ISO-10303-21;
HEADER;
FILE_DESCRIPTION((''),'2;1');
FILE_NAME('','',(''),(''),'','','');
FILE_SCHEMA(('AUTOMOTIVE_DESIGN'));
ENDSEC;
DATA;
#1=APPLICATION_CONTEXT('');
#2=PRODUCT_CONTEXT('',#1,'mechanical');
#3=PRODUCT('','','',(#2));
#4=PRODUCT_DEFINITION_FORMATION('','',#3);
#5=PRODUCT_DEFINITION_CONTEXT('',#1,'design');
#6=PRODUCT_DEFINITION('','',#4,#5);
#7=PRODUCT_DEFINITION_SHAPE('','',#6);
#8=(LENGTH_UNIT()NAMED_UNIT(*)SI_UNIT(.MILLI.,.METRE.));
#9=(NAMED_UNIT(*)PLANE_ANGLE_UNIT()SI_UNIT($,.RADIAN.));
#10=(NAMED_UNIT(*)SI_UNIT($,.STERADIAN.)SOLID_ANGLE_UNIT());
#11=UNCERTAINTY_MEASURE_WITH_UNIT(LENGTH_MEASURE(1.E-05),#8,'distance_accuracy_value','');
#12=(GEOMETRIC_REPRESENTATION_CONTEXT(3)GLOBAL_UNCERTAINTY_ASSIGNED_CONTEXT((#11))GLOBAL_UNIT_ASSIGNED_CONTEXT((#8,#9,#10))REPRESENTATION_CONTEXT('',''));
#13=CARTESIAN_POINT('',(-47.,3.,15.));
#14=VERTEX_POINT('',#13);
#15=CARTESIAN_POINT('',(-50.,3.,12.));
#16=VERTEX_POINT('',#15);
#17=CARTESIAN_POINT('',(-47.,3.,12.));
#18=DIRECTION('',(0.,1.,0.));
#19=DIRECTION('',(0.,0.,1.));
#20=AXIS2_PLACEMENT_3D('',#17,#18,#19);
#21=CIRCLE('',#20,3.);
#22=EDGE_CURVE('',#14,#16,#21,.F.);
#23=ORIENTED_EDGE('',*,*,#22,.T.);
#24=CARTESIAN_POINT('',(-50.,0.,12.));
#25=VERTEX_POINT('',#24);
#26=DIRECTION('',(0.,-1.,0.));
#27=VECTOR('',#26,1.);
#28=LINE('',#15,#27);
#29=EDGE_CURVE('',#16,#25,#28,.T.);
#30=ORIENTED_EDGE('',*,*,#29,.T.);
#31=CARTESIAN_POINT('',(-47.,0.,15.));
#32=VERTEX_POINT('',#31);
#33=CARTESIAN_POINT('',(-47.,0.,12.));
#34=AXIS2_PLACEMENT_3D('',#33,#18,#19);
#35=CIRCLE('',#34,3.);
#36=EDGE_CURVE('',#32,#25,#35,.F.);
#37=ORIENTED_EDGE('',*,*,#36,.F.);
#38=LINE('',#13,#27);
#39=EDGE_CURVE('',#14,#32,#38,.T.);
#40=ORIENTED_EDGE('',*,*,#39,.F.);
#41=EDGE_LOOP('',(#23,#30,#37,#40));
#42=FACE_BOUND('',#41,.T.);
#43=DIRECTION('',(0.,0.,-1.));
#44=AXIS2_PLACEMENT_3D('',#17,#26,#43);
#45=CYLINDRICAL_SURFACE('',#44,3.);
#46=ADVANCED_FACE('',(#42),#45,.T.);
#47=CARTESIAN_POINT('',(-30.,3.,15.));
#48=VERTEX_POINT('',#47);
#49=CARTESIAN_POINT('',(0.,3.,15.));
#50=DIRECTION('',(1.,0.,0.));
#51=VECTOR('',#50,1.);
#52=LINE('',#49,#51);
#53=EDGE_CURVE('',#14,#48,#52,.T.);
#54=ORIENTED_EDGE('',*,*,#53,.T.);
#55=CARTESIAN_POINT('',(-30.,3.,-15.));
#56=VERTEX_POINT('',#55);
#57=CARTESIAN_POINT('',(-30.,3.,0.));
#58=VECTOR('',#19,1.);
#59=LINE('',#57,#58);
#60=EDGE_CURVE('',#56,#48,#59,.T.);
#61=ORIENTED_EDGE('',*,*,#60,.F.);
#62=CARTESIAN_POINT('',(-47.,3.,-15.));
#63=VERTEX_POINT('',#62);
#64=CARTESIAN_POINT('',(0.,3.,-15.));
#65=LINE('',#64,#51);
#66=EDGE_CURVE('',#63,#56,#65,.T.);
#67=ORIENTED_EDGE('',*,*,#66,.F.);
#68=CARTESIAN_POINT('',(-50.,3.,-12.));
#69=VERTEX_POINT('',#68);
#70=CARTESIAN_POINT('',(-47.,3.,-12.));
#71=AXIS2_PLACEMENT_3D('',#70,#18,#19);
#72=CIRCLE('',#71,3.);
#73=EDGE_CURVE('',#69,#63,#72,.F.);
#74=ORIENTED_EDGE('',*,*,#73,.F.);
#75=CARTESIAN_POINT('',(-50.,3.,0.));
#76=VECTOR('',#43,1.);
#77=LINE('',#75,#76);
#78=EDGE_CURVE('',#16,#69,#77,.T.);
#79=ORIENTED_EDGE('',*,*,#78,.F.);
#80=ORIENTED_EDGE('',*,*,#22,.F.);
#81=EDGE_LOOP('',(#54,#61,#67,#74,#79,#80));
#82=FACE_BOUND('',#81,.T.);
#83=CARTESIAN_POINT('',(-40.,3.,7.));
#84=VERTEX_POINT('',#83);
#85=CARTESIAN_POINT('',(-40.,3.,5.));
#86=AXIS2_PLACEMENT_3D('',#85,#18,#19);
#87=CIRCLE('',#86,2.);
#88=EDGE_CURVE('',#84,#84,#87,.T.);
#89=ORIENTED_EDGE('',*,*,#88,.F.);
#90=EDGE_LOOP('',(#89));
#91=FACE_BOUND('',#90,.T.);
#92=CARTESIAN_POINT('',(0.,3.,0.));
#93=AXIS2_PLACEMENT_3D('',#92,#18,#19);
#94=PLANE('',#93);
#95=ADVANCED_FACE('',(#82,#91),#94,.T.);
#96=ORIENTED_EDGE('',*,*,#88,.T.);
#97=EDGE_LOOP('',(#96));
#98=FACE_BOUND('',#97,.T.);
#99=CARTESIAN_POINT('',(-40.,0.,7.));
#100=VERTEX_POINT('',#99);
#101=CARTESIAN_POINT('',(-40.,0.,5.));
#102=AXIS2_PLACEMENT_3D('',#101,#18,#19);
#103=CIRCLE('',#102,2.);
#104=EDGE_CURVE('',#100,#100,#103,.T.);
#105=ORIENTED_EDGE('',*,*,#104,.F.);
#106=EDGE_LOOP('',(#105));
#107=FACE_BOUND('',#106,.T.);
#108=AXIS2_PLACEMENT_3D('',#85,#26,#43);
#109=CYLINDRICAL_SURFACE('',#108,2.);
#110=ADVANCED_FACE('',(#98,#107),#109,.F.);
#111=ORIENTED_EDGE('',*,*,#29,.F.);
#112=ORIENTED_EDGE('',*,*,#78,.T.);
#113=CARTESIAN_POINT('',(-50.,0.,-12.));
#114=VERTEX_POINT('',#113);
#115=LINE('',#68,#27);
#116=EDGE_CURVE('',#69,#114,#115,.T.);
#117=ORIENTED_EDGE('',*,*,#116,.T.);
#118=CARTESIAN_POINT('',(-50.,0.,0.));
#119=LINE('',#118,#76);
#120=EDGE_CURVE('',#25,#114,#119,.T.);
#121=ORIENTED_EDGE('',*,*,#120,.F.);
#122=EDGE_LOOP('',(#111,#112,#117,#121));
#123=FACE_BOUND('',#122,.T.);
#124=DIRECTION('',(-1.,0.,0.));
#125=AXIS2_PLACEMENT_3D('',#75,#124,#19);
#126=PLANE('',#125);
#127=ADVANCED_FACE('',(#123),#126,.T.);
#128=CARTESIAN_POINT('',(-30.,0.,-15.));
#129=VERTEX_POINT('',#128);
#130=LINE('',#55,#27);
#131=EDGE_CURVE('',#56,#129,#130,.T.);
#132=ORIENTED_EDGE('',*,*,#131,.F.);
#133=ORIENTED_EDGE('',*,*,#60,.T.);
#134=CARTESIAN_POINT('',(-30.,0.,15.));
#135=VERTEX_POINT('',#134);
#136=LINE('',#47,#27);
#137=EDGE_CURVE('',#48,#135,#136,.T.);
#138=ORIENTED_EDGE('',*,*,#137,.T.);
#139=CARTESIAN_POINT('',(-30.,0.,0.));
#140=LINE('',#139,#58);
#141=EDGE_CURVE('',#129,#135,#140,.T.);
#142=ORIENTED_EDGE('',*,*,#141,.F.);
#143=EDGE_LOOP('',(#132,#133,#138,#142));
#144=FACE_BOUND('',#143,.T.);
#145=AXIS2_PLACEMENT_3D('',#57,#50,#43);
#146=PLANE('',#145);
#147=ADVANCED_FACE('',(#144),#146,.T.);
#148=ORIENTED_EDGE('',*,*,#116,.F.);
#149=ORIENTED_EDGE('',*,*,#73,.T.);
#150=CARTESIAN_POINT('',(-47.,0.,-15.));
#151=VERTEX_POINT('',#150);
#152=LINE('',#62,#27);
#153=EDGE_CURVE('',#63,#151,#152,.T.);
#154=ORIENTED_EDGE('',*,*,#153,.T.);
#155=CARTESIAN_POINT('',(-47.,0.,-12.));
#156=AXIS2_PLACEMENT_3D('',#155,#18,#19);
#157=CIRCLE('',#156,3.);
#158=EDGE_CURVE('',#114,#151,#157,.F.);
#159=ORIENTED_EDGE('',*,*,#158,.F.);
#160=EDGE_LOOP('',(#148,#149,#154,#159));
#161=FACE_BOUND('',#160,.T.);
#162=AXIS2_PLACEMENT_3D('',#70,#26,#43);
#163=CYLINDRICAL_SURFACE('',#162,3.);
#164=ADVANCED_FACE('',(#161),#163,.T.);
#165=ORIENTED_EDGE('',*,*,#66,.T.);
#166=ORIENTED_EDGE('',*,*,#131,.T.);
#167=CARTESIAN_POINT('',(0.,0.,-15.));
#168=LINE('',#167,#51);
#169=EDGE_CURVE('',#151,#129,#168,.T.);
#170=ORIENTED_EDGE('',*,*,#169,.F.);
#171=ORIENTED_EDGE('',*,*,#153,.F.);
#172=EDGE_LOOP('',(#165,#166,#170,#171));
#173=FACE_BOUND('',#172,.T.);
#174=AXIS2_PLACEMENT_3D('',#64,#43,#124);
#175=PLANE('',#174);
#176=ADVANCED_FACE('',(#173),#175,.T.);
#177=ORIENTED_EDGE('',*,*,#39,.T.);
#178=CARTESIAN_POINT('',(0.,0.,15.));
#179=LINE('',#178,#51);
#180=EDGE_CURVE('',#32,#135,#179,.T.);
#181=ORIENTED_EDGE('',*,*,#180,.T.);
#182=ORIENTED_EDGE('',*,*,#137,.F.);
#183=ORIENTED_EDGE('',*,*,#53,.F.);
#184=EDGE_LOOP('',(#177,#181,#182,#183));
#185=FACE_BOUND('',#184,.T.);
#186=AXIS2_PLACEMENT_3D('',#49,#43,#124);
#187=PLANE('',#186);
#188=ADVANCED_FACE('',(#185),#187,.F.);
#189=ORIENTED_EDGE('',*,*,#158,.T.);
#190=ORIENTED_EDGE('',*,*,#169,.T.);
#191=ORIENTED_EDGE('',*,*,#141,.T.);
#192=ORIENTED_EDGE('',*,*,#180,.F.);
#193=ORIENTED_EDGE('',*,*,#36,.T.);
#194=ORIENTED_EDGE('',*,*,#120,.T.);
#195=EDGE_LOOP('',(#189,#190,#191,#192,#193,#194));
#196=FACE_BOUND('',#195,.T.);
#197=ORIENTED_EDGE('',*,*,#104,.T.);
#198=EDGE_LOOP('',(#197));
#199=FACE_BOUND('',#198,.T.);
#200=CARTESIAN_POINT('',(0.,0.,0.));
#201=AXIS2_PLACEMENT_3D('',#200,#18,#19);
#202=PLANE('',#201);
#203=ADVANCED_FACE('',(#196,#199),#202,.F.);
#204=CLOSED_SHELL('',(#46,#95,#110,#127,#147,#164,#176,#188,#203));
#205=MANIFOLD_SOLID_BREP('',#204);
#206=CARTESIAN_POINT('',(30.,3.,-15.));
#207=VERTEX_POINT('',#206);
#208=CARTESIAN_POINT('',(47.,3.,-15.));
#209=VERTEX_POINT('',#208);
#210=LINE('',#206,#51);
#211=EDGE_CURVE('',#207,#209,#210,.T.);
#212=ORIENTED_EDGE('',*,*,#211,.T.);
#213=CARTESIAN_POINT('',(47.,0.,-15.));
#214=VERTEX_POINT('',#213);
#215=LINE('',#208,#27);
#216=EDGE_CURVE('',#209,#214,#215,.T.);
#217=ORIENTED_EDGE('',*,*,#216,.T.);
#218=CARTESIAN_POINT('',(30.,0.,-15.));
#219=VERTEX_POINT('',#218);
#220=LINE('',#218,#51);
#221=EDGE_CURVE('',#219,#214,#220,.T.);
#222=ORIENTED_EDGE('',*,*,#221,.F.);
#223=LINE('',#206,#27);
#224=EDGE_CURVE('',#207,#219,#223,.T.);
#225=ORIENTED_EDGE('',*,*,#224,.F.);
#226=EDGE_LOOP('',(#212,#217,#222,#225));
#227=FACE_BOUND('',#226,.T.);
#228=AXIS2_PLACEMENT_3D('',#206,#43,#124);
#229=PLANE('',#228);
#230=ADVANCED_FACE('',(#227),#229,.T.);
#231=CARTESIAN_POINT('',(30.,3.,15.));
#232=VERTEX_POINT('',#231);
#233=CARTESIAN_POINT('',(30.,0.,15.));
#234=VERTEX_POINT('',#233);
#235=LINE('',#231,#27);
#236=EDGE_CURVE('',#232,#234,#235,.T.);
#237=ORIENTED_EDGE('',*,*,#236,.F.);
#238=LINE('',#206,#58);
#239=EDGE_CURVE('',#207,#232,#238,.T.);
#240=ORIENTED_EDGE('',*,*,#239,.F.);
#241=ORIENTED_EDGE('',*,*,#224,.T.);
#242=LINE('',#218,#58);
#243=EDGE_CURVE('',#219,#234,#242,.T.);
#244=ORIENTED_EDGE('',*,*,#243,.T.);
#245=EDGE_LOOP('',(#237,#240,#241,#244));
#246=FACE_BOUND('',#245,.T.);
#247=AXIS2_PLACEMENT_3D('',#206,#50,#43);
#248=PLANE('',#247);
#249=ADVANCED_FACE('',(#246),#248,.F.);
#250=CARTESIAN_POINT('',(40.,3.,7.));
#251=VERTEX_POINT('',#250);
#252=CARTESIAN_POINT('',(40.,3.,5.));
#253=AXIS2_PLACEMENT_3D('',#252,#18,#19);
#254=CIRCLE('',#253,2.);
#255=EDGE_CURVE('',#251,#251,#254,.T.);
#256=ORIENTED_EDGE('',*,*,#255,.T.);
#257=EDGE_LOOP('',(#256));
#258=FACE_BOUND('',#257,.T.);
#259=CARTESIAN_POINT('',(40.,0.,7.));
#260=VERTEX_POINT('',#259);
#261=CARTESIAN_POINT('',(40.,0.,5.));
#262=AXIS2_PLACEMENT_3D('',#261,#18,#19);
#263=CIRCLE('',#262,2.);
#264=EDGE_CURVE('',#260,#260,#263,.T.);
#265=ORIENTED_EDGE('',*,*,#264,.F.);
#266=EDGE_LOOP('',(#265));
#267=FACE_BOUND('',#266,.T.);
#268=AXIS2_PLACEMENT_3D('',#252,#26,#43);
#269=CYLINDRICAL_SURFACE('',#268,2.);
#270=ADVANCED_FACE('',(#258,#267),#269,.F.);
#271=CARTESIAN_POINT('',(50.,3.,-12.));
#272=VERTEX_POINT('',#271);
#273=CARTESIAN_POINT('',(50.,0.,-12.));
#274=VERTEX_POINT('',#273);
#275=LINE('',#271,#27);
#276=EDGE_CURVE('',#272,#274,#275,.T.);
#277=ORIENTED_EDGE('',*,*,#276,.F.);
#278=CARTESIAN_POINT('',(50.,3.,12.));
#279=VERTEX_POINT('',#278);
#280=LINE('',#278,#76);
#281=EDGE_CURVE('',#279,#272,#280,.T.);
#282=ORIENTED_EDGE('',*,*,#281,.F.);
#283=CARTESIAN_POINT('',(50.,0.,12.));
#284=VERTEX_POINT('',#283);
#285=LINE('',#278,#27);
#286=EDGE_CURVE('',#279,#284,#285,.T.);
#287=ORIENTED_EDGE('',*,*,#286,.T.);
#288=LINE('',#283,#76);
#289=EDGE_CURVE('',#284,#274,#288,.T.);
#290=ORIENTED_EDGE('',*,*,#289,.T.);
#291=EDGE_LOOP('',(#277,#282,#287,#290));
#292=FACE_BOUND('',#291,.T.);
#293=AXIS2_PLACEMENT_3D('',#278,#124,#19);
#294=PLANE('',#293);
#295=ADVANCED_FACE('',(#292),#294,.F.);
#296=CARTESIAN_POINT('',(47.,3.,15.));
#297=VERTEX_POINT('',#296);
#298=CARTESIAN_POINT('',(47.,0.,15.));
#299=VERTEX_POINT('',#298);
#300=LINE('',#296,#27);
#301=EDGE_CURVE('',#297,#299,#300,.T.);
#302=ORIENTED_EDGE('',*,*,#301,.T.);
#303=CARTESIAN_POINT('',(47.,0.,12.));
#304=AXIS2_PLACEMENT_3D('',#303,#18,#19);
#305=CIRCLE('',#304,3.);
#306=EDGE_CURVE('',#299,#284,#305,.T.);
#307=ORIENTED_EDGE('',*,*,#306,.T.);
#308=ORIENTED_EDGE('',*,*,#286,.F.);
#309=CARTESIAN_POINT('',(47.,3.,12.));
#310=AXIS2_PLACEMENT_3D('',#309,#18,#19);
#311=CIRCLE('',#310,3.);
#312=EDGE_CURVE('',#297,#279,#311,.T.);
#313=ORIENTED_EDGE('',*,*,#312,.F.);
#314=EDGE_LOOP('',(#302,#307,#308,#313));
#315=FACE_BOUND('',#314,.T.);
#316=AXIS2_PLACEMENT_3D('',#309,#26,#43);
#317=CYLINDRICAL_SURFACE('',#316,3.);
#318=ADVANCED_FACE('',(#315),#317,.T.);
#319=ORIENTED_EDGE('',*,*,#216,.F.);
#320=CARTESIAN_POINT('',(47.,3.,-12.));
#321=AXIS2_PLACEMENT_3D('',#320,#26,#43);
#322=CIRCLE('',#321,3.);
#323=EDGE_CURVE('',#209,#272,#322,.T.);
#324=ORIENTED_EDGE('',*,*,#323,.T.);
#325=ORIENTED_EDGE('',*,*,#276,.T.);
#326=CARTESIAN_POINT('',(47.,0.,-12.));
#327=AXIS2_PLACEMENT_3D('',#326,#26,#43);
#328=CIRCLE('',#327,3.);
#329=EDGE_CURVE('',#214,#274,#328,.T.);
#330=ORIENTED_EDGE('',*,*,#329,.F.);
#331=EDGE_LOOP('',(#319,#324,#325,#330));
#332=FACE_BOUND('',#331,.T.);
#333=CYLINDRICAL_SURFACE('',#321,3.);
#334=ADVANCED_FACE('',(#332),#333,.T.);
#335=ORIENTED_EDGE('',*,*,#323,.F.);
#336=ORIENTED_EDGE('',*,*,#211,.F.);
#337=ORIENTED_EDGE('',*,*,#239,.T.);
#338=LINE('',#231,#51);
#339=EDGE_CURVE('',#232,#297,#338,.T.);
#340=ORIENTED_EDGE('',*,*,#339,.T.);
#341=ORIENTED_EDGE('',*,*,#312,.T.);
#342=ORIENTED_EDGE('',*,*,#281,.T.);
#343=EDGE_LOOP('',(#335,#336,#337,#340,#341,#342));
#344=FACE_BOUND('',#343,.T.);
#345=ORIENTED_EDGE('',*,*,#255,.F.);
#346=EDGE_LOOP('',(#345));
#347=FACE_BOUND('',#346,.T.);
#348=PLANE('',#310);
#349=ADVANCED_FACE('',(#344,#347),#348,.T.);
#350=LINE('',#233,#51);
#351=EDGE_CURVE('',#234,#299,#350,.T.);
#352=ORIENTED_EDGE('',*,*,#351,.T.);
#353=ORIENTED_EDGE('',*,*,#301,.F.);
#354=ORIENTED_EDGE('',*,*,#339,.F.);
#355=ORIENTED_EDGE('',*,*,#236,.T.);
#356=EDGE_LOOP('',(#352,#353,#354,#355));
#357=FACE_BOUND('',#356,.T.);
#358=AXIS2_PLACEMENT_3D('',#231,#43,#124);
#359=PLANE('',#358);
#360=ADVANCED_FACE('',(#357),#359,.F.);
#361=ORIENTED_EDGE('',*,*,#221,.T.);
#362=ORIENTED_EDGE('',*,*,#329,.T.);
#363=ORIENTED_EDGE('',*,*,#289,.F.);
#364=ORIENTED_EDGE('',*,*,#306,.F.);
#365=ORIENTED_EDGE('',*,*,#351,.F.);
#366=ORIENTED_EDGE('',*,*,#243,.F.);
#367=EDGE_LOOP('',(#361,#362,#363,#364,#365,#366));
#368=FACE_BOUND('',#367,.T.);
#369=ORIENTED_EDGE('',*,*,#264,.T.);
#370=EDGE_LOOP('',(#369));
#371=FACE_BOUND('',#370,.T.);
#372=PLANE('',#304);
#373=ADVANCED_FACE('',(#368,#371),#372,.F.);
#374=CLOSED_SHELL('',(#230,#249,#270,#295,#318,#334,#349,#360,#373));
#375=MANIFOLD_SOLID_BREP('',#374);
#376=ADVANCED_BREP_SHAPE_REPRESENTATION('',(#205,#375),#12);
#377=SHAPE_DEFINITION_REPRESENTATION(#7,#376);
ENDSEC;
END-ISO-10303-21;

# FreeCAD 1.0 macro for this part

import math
import FreeCAD as App
import Part
import Sketcher
from FreeCAD import Vector
Q = App.Units.Quantity

doc = App.newDocument("Part")
body = doc.addObject("PartDesign::Body", "Body")

# Sketch on XZ plane
sketch1 = doc.addObject("Sketcher::SketchObject", "Sketch")
body.addObject(sketch1)
sketch1.AttachmentSupport = (doc.XZ_Plane, [""])
sketch1.MapMode = "FlatFace"
sketch1.addGeometry([
    Part.LineSegment(Vector(-30, 15, 0), Vector(-30, -15, 0)),  # 0
    Part.LineSegment(Vector(-30, -15, 0), Vector(-47, -15, 0)),  # 1
    Part.ArcOfCircle(Part.Circle(Vector(-47, -12, 0), Vector(0, 0, 1), 3), math.radians(180), math.radians(270)),  # 2
    Part.LineSegment(Vector(-50, -12, 0), Vector(-50, 12, 0)),  # 3
    Part.ArcOfCircle(Part.Circle(Vector(-47, 12, 0), Vector(0, 0, 1), 3), math.radians(90), math.radians(180)),  # 4
    Part.LineSegment(Vector(-47, 15, 0), Vector(-30, 15, 0)),  # 5
    Part.Circle(Vector(-40, 5, 0), Vector(0, 0, 1), 2),  # 6
], False)
sketch1.addConstraint([
    Sketcher.Constraint("Coincident", 0, 2, 1, 1),
    Sketcher.Constraint("Tangent", 1, 2, 2, 2),
    Sketcher.Constraint("Tangent", 2, 1, 3, 1),
    Sketcher.Constraint("Tangent", 3, 2, 4, 2),
    Sketcher.Constraint("Tangent", 4, 1, 5, 1),
    Sketcher.Constraint("Coincident", 5, 2, 0, 1),
    Sketcher.Constraint("Vertical", 0),
    Sketcher.Constraint("Horizontal", 1),
    Sketcher.Constraint("Vertical", 3),
    Sketcher.Constraint("Horizontal", 5),
    Sketcher.Constraint("Equal", 2, 4),
    Sketcher.Constraint("Diameter", 6, Q("4 mm")),
    Sketcher.Constraint("Radius", 2, Q("3 mm")),
    Sketcher.Constraint("DistanceX", 1, 2, 1, 1, Q("17 mm")),
    Sketcher.Constraint("DistanceY", 0, 2, 0, 1, Q("30 mm")),
    Sketcher.Constraint("DistanceX", 2, 3, -1, 1, Q("47 mm")),
    Sketcher.Constraint("DistanceY", 2, 3, -1, 1, Q("12 mm")),
    Sketcher.Constraint("DistanceX", 6, 3, -1, 1, Q("40 mm")),
    Sketcher.Constraint("DistanceY", -1, 1, 6, 3, Q("5 mm")),
])
pad1 = doc.addObject("PartDesign::Pad", "Pad")
body.addObject(pad1)
pad1.Profile = sketch1
pad1.Length = 3
pad1.Reversed = True
body2 = doc.addObject("PartDesign::Body", "Body001")

# Sketch on XZ plane
sketch2 = doc.addObject("Sketcher::SketchObject", "Sketch001")
body2.addObject(sketch2)
sketch2.AttachmentSupport = (doc.getObject("XZ_Plane001"), [""])
sketch2.MapMode = "FlatFace"
sketch2.addGeometry([
    Part.LineSegment(Vector(50, 12, 0), Vector(50, -12, 0)),  # 0
    Part.ArcOfCircle(Part.Circle(Vector(47, -12, 0), Vector(0, 0, 1), 3), math.radians(-90), math.radians(0)),  # 1
    Part.LineSegment(Vector(47, -15, 0), Vector(30, -15, 0)),  # 2
    Part.LineSegment(Vector(30, -15, 0), Vector(30, 15, 0)),  # 3
    Part.LineSegment(Vector(30, 15, 0), Vector(47, 15, 0)),  # 4
    Part.ArcOfCircle(Part.Circle(Vector(47, 12, 0), Vector(0, 0, 1), 3), math.radians(0), math.radians(90)),  # 5
    Part.Circle(Vector(40, 5, 0), Vector(0, 0, 1), 2),  # 6
], False)
sketch2.addConstraint([
    Sketcher.Constraint("Tangent", 0, 2, 1, 2),
    Sketcher.Constraint("Tangent", 1, 1, 2, 1),
    Sketcher.Constraint("Coincident", 2, 2, 3, 1),
    Sketcher.Constraint("Coincident", 3, 2, 4, 1),
    Sketcher.Constraint("Tangent", 4, 2, 5, 2),
    Sketcher.Constraint("Tangent", 5, 1, 0, 1),
    Sketcher.Constraint("Vertical", 0),
    Sketcher.Constraint("Horizontal", 2),
    Sketcher.Constraint("Vertical", 3),
    Sketcher.Constraint("Horizontal", 4),
    Sketcher.Constraint("Equal", 1, 5),
    Sketcher.Constraint("Diameter", 6, Q("4 mm")),
    Sketcher.Constraint("Radius", 1, Q("3 mm")),
    Sketcher.Constraint("DistanceX", 2, 2, 2, 1, Q("17 mm")),
    Sketcher.Constraint("DistanceY", 0, 2, 0, 1, Q("24 mm")),
    Sketcher.Constraint("DistanceX", -1, 1, 1, 3, Q("47 mm")),
    Sketcher.Constraint("DistanceY", 1, 3, -1, 1, Q("12 mm")),
    Sketcher.Constraint("DistanceX", -1, 1, 6, 3, Q("40 mm")),
    Sketcher.Constraint("DistanceY", -1, 1, 6, 3, Q("5 mm")),
])
pad2 = doc.addObject("PartDesign::Pad", "Pad001")
body2.addObject(pad2)
pad2.Profile = sketch2
pad2.Length = 3
pad2.Reversed = True

doc.recompute()
